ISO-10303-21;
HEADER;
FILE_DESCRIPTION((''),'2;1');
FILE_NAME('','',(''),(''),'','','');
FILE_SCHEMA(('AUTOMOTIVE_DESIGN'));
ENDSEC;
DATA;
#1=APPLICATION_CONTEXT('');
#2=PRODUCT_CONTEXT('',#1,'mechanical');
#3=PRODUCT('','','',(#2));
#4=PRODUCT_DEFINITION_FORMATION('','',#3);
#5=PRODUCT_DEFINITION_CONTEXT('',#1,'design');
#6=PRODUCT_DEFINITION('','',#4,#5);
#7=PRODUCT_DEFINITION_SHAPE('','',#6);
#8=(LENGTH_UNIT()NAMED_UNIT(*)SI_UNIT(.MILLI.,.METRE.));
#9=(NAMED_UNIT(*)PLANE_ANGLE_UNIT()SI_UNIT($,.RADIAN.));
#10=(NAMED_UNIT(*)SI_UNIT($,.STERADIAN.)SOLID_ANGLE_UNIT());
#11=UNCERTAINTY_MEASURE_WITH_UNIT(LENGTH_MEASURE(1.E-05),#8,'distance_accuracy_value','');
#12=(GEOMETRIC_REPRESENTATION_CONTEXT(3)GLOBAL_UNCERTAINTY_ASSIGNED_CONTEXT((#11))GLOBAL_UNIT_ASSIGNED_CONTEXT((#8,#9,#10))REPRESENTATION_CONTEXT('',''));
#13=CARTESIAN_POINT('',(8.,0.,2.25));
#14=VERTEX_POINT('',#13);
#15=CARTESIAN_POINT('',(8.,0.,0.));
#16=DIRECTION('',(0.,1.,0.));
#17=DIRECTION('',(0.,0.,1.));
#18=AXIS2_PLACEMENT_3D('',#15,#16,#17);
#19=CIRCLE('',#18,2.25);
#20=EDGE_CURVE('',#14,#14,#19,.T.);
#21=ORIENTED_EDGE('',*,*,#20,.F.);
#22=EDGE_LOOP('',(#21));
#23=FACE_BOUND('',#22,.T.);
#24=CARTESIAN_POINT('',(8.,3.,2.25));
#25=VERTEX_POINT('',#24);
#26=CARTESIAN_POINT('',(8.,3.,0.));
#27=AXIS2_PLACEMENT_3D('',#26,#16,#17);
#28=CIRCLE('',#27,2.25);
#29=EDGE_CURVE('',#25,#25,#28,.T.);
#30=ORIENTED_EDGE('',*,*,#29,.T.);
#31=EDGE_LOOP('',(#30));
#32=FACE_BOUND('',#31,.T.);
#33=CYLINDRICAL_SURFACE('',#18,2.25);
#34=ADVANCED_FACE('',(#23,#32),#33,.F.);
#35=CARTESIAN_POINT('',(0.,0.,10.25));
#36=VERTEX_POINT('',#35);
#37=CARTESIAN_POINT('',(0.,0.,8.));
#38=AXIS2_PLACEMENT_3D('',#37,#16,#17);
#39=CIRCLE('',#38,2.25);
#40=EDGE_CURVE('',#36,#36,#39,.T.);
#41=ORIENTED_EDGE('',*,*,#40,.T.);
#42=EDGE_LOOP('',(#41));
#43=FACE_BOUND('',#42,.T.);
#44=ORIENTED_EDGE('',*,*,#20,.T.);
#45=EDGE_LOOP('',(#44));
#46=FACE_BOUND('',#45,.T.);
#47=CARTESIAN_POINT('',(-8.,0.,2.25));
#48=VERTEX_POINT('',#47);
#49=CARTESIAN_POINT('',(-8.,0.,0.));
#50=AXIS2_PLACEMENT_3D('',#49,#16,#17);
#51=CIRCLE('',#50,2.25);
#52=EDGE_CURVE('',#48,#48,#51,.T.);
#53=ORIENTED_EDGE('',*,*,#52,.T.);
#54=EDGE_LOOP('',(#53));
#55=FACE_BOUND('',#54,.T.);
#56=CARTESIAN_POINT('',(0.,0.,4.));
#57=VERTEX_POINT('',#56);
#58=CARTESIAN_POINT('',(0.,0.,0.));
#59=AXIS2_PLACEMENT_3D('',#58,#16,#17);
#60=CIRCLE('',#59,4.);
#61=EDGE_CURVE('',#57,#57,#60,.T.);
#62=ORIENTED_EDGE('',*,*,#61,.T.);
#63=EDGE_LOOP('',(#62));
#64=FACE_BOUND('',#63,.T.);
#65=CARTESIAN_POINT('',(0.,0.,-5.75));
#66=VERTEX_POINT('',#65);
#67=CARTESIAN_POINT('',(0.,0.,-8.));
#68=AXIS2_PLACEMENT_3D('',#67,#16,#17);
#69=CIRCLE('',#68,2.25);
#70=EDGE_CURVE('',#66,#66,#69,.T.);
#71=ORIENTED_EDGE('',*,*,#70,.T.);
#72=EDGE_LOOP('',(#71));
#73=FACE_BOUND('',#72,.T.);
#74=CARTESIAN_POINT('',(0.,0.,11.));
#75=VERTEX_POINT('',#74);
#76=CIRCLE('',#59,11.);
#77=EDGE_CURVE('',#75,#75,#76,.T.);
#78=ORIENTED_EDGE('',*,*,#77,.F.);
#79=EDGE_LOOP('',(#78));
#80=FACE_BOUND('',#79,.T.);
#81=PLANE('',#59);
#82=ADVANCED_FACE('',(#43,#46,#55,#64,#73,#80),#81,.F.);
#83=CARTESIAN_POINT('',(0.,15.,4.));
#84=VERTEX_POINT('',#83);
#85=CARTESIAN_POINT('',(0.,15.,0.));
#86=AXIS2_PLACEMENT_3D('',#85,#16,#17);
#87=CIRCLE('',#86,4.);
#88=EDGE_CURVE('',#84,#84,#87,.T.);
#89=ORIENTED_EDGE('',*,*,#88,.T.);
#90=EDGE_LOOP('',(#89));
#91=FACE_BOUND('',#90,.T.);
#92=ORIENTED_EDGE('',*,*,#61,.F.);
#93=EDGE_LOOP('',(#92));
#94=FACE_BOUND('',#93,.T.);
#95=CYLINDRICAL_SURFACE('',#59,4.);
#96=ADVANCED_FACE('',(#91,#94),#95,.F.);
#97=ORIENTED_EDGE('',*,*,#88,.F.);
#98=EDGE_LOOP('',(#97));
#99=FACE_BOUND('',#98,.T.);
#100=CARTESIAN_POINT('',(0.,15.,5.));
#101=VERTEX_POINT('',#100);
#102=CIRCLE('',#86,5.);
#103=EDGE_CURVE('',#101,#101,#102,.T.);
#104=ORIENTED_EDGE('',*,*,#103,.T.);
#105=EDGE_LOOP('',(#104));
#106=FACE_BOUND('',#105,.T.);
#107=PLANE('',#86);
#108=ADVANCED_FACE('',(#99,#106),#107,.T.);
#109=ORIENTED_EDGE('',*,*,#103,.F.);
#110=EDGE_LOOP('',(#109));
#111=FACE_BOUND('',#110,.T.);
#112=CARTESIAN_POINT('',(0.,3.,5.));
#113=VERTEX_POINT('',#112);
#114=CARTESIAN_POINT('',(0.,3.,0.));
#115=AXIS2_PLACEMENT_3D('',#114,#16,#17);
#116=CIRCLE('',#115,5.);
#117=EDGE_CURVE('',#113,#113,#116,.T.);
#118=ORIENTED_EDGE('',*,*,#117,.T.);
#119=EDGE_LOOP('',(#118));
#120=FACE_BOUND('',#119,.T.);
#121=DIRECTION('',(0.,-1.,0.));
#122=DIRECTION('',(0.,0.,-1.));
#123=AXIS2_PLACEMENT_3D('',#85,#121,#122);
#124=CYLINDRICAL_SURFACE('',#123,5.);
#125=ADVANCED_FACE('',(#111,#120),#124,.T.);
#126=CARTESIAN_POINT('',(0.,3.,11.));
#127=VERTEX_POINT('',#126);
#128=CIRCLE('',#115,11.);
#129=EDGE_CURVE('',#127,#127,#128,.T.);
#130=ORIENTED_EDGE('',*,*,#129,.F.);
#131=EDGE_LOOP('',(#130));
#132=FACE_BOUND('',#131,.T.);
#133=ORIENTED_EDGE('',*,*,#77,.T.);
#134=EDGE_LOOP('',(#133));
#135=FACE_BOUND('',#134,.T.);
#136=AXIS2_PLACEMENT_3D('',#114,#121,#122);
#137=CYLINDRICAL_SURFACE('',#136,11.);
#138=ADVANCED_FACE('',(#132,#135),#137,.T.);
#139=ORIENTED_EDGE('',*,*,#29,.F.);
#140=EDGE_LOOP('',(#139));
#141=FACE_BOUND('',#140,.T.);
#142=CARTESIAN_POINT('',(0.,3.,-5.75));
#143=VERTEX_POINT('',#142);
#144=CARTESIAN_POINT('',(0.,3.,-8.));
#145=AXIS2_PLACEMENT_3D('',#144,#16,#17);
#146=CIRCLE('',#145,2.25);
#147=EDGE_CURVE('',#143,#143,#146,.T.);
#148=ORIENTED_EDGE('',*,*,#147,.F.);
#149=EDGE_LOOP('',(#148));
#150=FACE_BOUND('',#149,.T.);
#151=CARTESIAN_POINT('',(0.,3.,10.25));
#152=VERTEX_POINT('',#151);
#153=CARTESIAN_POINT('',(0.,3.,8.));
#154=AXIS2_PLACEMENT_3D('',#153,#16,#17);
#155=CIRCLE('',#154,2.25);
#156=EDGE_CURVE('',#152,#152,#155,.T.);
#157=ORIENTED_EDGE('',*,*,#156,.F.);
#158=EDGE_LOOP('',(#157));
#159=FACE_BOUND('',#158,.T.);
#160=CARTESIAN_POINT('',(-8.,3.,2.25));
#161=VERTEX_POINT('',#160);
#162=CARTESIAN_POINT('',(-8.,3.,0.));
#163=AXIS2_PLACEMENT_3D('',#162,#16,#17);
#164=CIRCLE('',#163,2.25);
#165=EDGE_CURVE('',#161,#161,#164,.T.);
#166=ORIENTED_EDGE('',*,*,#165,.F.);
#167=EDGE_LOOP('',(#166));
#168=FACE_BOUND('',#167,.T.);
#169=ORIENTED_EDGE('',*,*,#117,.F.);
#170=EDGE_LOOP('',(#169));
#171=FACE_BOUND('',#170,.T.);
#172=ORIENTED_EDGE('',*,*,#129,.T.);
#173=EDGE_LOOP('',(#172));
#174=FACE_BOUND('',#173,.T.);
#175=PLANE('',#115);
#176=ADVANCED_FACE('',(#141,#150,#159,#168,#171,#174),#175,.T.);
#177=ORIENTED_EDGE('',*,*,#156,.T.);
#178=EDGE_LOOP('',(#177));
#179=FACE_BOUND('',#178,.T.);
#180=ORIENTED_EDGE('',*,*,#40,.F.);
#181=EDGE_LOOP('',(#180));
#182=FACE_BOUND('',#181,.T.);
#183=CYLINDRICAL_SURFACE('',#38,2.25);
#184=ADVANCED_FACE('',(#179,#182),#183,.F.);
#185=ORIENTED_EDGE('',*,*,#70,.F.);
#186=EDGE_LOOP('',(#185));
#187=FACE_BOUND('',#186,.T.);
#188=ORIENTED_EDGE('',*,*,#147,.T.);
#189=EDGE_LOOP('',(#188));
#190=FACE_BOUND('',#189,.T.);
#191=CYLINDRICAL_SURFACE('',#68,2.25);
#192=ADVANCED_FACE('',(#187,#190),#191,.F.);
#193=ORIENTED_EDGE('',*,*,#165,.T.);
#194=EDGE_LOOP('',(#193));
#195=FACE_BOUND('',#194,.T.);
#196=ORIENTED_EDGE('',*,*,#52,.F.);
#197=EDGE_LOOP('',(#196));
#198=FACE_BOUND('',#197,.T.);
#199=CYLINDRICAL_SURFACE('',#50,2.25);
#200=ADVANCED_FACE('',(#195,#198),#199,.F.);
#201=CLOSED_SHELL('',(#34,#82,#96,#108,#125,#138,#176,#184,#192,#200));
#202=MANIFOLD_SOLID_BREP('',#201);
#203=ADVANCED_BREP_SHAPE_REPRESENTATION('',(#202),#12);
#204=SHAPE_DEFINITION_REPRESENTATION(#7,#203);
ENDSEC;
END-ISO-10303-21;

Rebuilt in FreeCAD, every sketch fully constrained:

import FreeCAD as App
import Part
import Sketcher

V = App.Vector

doc = App.newDocument("Part")
body = doc.addObject("PartDesign::Body", "Body")

sketch1 = body.newObject("Sketcher::SketchObject", "Sketch")
sketch1.AttachmentSupport = (doc.getObject("XZ_Plane"), [""])
sketch1.MapMode = "FlatFace"
sketch1.addGeometry(Part.Circle(V(0, 0, 0), V(0, 0, 1), 11), False)
sketch1.addConstraint([
    Sketcher.Constraint("Coincident", 0, 3, -1, 1),
    Sketcher.Constraint("Diameter", 0, 22.0),
])
pad1 = body.newObject("PartDesign::Pad", "Pad")
pad1.Profile = sketch1
pad1.Length = 3
pad1.Reversed = True

sketch2 = body.newObject("Sketcher::SketchObject", "Sketch001")
sketch2.AttachmentSupport = (doc.getObject("XZ_Plane"), [""])
sketch2.MapMode = "FlatFace"
sketch2.AttachmentOffset = App.Placement(V(0, 0, -3), App.Rotation())
sketch2.addGeometry(Part.Circle(V(0, 0, 0), V(0, 0, 1), 5), False)
sketch2.addConstraint([
    Sketcher.Constraint("Coincident", 0, 3, -1, 1),
    Sketcher.Constraint("Diameter", 0, 10.0),
])
pad2 = body.newObject("PartDesign::Pad", "Pad001")
pad2.Profile = sketch2
pad2.Length = 12
pad2.Reversed = True

sketch3 = body.newObject("Sketcher::SketchObject", "Sketch002")
sketch3.AttachmentSupport = (doc.getObject("XZ_Plane"), [""])
sketch3.MapMode = "FlatFace"
sketch3.AttachmentOffset = App.Placement(V(0, 0, -15), App.Rotation())
sketch3.addGeometry(Part.Circle(V(0, 0, 0), V(0, 0, 1), 4), False)
sketch3.addConstraint([
    Sketcher.Constraint("Coincident", 0, 3, -1, 1),
    Sketcher.Constraint("Diameter", 0, 8.0),
])
pocket1 = body.newObject("PartDesign::Pocket", "Pocket")
pocket1.Profile = sketch3
pocket1.Type = "ThroughAll"
pocket1.Reversed = True

sketch4 = body.newObject("Sketcher::SketchObject", "Sketch003")
sketch4.AttachmentSupport = (doc.getObject("XZ_Plane"), [""])
sketch4.MapMode = "FlatFace"
sketch4.AttachmentOffset = App.Placement(V(0, 0, -3), App.Rotation())
sketch4.addGeometry([
    Part.Circle(V(8, 0, 0), V(0, 0, 1), 2.2),
    Part.Circle(V(0, -8, 0), V(0, 0, 1), 2.2),
    Part.Circle(V(-8, 0, 0), V(0, 0, 1), 2.2),
    Part.Circle(V(0, 8, 0), V(0, 0, 1), 2.2),
], False)
sketch4.addConstraint([
    Sketcher.Constraint("Equal", 0, 1),
    Sketcher.Constraint("Equal", 1, 2),
    Sketcher.Constraint("Equal", 2, 3),
    Sketcher.Constraint("Symmetric", 0, 3, 2, 3, -1, 1),
    Sketcher.Constraint("Symmetric", 1, 3, 3, 3, -1, 1),
    Sketcher.Constraint("PointOnObject", 0, 3, -1),
    Sketcher.Constraint("PointOnObject", 1, 3, -2),
    Sketcher.Constraint("Diameter", 0, 4.5),
    Sketcher.Constraint("DistanceX", -1, 1, 0, 3, 8.0),
    Sketcher.Constraint("DistanceY", 1, 3, -1, 1, 8.0),
])
pocket2 = body.newObject("PartDesign::Pocket", "Pocket001")
pocket2.Profile = sketch4
pocket2.Type = "ThroughAll"
pocket2.Reversed = True

doc.recompute()
